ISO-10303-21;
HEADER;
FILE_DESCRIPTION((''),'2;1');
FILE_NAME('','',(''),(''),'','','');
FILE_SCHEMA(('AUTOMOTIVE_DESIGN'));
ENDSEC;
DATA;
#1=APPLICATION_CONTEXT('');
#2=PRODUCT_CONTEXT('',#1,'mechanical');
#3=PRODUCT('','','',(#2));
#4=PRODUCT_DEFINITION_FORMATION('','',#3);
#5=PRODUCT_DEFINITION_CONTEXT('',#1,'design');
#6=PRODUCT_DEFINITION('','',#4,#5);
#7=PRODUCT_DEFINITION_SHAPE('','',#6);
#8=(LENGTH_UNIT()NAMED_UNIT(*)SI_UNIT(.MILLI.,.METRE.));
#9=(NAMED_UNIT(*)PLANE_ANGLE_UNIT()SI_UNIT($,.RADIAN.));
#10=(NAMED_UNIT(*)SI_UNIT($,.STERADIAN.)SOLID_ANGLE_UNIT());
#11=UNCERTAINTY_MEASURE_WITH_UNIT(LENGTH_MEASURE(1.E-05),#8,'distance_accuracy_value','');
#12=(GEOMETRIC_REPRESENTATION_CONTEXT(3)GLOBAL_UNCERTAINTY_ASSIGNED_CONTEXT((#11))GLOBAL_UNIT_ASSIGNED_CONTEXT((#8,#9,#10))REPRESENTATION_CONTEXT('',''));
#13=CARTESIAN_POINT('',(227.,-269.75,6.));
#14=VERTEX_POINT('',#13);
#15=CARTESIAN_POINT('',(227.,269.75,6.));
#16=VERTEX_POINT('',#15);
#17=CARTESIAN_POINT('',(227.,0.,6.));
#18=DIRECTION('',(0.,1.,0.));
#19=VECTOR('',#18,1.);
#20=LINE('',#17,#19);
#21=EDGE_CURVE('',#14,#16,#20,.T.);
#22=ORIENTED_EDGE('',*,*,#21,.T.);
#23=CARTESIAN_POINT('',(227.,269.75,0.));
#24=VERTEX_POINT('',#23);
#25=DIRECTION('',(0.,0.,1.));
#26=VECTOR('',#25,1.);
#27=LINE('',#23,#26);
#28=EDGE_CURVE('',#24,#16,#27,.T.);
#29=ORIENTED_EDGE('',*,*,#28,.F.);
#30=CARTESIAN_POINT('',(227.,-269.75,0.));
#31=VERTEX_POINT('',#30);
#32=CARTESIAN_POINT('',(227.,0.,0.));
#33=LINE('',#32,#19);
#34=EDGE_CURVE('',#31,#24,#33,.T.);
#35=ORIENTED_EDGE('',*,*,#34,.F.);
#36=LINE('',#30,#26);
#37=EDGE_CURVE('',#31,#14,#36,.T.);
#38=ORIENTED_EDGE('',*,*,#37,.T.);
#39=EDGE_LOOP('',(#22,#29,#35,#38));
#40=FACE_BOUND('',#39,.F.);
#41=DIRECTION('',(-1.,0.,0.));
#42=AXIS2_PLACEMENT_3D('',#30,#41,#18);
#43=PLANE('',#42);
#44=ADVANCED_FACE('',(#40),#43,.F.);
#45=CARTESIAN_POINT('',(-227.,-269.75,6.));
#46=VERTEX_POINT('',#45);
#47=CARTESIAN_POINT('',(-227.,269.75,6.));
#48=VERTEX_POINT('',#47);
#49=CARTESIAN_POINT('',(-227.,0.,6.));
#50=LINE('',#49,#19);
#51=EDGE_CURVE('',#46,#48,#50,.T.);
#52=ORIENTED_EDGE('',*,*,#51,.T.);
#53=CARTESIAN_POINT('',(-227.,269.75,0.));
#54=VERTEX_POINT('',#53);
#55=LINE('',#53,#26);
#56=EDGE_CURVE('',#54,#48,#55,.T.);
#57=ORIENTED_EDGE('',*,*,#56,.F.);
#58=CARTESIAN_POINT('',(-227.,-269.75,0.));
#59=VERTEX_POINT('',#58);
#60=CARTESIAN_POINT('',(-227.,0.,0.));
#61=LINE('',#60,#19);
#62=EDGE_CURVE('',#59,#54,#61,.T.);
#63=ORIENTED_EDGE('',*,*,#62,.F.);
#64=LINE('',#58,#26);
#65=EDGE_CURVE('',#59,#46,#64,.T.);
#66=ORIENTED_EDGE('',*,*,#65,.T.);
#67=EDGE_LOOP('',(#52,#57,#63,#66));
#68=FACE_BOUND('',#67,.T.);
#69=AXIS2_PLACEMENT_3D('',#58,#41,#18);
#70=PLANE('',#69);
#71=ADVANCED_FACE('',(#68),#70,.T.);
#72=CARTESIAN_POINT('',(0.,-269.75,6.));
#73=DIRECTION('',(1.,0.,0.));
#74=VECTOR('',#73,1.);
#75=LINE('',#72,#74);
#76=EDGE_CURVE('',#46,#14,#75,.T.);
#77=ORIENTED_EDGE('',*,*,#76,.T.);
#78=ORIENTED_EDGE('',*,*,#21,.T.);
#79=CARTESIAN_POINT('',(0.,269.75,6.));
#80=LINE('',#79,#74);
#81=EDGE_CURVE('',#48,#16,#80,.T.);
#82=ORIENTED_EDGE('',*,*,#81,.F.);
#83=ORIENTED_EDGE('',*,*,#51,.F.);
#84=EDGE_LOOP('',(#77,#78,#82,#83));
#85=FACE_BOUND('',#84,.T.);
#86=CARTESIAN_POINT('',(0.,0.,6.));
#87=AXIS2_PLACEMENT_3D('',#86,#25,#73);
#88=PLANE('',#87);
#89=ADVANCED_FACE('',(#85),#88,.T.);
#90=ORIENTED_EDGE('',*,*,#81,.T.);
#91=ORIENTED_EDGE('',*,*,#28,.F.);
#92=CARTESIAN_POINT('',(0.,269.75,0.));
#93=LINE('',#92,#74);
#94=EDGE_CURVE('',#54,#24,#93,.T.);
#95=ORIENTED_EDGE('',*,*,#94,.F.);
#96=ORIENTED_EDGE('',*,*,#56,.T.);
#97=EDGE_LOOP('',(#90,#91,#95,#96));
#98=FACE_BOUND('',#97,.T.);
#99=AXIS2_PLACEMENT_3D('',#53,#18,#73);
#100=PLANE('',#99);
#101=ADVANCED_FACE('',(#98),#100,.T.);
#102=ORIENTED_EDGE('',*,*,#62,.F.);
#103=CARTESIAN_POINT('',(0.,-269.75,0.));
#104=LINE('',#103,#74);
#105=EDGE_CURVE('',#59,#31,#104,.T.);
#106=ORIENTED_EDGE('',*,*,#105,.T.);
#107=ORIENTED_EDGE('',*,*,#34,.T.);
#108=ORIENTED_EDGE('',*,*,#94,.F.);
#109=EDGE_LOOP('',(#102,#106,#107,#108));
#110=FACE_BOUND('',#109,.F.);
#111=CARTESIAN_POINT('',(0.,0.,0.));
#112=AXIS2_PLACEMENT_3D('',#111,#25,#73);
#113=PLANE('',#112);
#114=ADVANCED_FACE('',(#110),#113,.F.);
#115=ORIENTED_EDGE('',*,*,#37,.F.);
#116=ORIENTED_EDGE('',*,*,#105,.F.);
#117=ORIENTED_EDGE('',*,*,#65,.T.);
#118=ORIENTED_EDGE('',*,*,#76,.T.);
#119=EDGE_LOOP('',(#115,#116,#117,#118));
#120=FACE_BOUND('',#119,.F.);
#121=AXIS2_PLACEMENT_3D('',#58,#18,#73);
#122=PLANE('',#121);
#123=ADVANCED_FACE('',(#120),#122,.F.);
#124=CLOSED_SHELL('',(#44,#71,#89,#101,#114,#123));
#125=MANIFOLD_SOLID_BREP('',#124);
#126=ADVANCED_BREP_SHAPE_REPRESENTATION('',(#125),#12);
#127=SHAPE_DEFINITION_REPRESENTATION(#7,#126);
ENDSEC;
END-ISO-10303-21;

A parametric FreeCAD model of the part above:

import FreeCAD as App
import Part
import Sketcher
from FreeCAD import Vector

doc = App.newDocument("Part")
body = doc.addObject("PartDesign::Body", "Body")

# Sketch on XY plane
sketch1 = doc.addObject("Sketcher::SketchObject", "Sketch")
body.addObject(sketch1)
sketch1.AttachmentSupport = (doc.XY_Plane, [""])
sketch1.MapMode = "FlatFace"
sketch1.addGeometry([
    Part.LineSegment(Vector(-227, 269.75, 0), Vector(-227, -269.75, 0)),
    Part.LineSegment(Vector(-227, -269.75, 0), Vector(227, -269.75, 0)),
    Part.LineSegment(Vector(227, -269.75, 0), Vector(227, 269.75, 0)),
    Part.LineSegment(Vector(227, 269.75, 0), Vector(-227, 269.75, 0)),
], False)
sketch1.addConstraint([
    Sketcher.Constraint("Coincident", 0, 2, 1, 1),
    Sketcher.Constraint("Coincident", 1, 2, 2, 1),
    Sketcher.Constraint("Coincident", 2, 2, 3, 1),
    Sketcher.Constraint("Coincident", 3, 2, 0, 1),
    Sketcher.Constraint("Vertical", 0),
    Sketcher.Constraint("Horizontal", 1),
    Sketcher.Constraint("Vertical", 2),
    Sketcher.Constraint("Horizontal", 3),
    Sketcher.Constraint("Symmetric", 0, 2, 2, 2, -1, 1),
    Sketcher.Constraint("DistanceX", 1, 1, 1, 2, 454.0),
    Sketcher.Constraint("DistanceY", 0, 2, 0, 1, 539.5),
])
pad1 = doc.addObject("PartDesign::Pad", "Pad")
body.addObject(pad1)
pad1.Profile = sketch1
pad1.Length = 6

doc.recompute()
